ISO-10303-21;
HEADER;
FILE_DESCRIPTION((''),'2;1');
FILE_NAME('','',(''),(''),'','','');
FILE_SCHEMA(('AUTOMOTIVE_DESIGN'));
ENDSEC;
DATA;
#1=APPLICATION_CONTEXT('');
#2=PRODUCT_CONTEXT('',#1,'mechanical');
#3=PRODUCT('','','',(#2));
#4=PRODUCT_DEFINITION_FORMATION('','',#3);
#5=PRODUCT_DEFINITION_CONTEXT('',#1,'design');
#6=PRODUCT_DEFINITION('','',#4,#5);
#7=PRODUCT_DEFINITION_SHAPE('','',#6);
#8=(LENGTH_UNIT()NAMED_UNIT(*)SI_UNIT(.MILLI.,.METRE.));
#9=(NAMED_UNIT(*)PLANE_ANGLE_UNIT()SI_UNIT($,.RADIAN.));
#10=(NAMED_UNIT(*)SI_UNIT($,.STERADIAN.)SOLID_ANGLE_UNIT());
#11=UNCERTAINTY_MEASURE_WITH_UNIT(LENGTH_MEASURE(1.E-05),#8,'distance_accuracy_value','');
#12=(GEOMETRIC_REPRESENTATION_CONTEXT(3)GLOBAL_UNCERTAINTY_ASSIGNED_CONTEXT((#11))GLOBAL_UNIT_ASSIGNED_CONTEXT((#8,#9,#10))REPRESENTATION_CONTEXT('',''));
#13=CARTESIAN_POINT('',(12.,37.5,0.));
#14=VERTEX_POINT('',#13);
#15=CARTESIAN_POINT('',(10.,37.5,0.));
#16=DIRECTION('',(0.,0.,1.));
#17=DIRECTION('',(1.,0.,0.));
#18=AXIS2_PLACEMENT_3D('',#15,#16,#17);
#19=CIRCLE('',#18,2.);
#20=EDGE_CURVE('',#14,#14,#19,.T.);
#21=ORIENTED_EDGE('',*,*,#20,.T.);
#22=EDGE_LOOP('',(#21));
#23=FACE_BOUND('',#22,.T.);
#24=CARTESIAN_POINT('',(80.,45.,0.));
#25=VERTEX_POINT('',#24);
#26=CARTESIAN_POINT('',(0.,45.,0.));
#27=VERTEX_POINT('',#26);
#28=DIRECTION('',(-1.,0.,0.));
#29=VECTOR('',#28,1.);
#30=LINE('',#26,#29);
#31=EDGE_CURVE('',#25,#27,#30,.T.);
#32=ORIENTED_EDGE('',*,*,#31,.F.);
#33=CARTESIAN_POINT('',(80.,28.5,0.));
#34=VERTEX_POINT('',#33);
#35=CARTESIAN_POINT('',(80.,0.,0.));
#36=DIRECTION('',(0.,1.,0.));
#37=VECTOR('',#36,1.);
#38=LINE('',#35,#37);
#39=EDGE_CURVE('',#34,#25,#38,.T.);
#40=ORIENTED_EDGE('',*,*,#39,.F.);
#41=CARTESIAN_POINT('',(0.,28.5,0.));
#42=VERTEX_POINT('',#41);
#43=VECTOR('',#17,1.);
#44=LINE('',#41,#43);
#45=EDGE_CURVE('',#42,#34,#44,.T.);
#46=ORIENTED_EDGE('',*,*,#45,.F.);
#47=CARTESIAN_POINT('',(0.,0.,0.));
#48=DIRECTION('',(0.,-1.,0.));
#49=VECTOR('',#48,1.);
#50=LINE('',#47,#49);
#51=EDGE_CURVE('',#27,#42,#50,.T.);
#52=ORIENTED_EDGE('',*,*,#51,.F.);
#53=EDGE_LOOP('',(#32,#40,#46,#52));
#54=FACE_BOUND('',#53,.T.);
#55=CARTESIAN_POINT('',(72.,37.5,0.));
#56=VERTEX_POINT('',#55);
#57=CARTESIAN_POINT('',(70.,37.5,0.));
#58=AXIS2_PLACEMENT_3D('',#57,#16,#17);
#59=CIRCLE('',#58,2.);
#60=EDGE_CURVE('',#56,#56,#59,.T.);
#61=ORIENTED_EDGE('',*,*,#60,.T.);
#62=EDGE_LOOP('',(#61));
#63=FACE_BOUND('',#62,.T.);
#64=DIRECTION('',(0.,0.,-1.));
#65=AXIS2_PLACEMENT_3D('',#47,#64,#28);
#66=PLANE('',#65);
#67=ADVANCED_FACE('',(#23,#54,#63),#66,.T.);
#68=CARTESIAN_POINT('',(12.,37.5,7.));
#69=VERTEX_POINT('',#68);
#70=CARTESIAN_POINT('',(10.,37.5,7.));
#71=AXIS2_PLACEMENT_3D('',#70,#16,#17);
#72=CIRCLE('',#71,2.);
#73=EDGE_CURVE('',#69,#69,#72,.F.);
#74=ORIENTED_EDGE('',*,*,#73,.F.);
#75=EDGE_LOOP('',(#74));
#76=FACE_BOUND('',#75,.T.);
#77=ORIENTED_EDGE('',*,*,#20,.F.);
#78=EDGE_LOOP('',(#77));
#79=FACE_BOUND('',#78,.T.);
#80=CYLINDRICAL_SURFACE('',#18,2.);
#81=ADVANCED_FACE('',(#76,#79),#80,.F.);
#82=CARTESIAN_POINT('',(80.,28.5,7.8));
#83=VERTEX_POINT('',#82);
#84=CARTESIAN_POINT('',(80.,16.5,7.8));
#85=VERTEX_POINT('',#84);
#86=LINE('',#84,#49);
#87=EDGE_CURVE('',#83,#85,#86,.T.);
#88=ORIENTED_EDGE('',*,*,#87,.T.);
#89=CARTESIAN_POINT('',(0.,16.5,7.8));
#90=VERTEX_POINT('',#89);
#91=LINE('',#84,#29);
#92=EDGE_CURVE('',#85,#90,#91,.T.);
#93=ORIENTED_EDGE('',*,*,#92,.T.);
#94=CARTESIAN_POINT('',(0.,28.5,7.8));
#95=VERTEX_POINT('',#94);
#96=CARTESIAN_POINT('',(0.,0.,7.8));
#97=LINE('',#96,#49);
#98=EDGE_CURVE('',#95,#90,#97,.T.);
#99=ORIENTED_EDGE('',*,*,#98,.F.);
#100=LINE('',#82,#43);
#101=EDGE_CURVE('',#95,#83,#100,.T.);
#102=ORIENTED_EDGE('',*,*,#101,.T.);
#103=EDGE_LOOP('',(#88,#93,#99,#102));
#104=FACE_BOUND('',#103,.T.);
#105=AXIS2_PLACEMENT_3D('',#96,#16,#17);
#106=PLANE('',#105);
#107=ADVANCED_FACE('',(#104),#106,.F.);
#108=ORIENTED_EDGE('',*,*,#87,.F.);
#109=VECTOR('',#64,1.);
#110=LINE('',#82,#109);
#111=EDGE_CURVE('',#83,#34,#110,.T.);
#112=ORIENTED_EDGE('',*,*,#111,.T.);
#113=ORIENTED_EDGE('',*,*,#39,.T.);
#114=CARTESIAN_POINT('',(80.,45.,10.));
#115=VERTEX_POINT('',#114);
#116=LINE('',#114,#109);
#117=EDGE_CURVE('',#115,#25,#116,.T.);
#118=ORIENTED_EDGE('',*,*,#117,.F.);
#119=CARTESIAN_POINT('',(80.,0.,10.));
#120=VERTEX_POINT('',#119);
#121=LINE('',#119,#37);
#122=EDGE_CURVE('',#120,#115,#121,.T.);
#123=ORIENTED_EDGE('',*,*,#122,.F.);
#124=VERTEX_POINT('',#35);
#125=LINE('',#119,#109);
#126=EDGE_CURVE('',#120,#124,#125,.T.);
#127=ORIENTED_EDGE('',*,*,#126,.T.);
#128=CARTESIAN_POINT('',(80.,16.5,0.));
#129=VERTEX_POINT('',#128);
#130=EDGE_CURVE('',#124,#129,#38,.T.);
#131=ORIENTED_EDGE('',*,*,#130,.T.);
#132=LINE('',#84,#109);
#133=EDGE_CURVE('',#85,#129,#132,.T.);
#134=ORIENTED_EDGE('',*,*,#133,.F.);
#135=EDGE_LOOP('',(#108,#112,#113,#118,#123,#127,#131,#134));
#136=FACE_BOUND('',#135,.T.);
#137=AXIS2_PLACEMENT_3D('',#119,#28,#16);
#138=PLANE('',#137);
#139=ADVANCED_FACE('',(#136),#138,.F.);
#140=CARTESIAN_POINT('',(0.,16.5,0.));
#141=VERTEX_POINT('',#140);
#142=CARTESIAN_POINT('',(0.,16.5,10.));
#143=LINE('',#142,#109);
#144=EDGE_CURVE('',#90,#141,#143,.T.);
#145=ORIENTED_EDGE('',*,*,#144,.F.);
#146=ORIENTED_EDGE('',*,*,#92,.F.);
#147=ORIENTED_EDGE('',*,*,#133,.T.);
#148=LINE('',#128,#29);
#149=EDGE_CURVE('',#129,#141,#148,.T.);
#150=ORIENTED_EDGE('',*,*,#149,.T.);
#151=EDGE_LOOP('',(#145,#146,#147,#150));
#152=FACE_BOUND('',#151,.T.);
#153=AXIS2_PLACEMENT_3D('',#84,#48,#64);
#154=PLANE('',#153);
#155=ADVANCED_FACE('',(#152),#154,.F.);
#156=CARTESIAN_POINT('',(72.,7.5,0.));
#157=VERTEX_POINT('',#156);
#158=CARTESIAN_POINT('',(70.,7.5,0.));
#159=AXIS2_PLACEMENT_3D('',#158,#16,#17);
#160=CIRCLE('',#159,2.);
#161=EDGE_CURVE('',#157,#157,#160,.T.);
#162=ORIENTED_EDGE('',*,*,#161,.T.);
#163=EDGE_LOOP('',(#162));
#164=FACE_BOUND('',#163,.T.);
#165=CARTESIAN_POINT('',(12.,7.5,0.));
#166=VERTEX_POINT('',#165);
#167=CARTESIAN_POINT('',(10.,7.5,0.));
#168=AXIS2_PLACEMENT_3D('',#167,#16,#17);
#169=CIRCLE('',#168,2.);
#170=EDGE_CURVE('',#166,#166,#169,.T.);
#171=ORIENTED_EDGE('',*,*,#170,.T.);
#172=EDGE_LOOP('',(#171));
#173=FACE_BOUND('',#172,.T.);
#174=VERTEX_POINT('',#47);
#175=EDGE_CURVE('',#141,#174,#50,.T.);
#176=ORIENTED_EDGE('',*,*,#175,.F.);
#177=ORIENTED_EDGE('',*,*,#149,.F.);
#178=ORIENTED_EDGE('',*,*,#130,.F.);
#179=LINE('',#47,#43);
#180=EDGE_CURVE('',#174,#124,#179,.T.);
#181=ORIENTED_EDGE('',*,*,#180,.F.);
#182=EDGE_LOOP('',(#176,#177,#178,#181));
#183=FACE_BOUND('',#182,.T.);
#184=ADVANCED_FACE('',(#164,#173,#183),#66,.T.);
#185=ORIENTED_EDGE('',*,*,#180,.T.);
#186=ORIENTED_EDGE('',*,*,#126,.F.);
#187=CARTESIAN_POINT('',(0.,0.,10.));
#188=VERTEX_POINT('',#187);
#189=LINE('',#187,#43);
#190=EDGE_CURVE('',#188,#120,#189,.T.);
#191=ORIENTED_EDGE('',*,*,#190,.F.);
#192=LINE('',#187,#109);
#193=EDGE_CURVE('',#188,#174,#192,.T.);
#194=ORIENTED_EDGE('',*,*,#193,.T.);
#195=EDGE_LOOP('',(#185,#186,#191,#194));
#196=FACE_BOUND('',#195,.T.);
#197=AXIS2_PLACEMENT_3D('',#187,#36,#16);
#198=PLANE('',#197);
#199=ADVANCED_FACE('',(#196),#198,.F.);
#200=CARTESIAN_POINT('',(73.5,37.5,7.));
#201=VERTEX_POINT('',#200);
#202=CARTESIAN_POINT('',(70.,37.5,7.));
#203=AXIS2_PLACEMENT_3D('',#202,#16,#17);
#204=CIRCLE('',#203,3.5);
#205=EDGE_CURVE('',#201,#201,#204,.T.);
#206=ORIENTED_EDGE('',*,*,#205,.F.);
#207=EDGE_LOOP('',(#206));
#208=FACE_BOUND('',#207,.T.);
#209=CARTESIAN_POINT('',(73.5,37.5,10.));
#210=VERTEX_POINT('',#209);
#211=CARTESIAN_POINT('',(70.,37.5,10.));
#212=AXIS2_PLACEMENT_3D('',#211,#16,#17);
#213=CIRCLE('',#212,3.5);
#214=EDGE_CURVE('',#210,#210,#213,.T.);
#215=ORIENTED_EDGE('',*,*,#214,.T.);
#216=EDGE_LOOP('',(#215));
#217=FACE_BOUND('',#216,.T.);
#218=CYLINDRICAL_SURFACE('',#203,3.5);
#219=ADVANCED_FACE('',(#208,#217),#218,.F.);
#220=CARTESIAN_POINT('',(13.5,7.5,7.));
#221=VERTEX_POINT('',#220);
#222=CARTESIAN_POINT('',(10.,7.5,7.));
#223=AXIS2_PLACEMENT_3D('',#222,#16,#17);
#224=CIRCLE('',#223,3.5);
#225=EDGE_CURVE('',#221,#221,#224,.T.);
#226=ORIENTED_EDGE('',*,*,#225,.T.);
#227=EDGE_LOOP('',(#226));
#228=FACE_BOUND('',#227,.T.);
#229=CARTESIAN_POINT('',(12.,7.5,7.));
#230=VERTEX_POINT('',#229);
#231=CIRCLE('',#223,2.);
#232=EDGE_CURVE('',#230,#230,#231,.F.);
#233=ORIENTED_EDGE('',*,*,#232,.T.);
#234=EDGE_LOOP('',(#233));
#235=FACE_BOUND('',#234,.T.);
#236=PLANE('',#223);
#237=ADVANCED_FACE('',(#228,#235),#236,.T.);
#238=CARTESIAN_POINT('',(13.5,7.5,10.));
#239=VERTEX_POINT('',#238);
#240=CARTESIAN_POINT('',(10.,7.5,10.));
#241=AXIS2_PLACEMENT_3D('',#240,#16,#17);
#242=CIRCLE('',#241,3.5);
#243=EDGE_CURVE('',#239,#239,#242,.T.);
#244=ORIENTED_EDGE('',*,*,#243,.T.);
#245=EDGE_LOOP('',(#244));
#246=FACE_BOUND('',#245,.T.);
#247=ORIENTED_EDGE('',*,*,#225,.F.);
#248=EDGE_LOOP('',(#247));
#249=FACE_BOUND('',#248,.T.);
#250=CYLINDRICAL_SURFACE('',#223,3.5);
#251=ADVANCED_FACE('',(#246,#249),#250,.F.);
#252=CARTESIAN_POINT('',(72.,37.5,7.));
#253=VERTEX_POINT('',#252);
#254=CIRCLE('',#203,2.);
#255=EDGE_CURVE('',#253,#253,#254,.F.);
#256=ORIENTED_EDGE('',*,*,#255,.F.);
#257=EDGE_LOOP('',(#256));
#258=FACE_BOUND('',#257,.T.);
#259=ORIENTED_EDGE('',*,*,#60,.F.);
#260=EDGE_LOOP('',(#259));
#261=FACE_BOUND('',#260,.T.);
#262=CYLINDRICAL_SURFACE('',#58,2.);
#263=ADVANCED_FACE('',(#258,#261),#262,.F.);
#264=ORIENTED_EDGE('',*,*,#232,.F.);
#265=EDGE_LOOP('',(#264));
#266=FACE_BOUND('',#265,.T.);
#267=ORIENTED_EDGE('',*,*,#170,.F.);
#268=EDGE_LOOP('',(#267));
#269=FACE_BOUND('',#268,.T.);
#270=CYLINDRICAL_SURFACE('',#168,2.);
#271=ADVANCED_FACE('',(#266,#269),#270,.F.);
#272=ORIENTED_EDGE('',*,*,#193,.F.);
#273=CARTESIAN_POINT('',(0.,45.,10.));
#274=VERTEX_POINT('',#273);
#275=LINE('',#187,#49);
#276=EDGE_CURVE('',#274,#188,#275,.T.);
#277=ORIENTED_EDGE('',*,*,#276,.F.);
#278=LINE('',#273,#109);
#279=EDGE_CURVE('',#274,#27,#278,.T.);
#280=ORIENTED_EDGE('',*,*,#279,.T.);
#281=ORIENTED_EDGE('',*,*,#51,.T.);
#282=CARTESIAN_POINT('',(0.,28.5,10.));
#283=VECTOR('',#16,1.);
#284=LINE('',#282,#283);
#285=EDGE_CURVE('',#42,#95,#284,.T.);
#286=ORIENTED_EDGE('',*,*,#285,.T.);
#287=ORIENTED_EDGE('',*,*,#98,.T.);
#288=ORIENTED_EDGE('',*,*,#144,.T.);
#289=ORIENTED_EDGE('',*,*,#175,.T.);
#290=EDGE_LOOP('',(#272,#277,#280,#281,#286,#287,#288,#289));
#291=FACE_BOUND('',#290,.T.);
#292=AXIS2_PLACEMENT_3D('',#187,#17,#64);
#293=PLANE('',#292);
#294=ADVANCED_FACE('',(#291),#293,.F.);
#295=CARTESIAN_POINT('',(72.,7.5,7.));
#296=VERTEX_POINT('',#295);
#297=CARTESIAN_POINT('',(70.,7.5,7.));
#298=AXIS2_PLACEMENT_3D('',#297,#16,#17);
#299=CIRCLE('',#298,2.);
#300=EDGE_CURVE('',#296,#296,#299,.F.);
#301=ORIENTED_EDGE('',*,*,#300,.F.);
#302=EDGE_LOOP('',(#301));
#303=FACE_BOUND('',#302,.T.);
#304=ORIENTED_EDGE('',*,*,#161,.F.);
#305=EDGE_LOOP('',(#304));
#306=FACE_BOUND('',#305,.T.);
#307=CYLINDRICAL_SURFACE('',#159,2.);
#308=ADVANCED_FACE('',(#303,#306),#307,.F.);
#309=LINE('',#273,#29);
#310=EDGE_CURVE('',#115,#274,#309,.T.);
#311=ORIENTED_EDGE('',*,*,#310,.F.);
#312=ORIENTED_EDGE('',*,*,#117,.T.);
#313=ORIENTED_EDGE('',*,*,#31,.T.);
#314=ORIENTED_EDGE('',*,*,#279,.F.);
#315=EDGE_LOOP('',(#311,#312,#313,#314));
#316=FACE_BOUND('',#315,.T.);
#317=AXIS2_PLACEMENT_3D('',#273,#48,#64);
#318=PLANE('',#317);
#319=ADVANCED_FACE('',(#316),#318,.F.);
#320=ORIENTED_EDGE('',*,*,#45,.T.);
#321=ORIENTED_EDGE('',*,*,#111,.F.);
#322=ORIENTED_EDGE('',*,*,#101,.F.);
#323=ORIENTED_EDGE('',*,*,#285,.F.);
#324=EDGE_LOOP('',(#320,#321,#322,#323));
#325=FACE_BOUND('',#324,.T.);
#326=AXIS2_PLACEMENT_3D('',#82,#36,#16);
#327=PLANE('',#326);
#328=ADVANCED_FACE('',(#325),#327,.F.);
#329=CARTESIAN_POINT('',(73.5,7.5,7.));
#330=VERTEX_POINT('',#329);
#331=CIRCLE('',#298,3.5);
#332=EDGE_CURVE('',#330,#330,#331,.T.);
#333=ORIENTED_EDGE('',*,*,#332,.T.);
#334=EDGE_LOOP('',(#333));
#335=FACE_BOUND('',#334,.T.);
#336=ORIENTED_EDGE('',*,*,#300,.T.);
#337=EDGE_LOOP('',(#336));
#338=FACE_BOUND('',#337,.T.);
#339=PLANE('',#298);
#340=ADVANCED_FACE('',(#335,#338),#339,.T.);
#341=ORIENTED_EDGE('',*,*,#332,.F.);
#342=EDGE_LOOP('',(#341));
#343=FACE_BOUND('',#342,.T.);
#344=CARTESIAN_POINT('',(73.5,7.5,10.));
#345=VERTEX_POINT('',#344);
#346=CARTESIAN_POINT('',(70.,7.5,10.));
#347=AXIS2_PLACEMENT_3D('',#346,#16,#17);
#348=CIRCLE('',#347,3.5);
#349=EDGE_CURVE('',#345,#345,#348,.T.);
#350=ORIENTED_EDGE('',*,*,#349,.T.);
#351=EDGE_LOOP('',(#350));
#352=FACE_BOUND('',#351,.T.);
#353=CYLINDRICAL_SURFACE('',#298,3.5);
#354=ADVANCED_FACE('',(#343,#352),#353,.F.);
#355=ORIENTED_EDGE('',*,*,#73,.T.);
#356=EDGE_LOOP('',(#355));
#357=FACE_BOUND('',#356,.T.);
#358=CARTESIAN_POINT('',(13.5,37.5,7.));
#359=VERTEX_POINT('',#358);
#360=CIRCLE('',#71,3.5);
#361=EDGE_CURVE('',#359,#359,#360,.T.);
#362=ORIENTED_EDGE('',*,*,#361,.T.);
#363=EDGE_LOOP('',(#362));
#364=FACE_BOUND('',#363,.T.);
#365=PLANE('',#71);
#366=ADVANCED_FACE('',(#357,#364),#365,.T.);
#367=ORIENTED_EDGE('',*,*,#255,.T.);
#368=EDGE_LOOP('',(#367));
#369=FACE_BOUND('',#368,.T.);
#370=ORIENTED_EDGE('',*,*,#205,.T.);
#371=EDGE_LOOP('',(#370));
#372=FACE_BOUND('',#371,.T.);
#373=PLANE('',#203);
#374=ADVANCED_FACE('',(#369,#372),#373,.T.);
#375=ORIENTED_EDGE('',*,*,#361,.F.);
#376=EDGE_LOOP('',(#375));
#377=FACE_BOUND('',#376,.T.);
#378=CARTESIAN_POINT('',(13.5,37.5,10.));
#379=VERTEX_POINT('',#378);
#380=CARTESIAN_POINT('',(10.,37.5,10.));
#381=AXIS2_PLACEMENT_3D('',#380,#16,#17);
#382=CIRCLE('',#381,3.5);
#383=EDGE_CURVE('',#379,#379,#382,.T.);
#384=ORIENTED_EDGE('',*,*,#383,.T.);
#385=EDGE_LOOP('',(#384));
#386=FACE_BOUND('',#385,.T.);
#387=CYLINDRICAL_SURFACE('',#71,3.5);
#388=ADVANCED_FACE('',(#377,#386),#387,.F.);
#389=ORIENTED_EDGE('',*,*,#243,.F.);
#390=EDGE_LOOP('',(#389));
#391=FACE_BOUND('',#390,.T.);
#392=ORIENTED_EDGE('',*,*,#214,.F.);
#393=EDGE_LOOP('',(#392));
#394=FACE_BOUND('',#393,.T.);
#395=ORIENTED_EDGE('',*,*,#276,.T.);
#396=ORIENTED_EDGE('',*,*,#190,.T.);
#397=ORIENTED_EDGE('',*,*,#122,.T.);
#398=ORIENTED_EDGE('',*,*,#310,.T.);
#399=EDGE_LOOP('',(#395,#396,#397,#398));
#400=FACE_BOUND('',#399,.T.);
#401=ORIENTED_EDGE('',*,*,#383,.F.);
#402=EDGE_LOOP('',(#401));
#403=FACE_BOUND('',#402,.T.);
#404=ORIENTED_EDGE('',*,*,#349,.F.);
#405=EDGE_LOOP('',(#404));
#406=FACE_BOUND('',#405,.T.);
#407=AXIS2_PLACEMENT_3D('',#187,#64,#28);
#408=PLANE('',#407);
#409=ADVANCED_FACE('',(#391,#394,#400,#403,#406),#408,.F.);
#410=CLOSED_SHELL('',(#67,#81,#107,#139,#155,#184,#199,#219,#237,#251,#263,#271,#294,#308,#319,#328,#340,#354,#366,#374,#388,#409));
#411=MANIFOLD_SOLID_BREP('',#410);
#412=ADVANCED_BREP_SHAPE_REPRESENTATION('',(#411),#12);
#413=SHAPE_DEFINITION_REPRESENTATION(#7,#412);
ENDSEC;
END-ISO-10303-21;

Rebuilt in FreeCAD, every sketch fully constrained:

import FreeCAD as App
import Part
import Sketcher

V = App.Vector
Q = App.Units.Quantity

doc = App.newDocument("Part")
body = doc.addObject("PartDesign::Body", "Body")

sketch1 = body.newObject("Sketcher::SketchObject", "Sketch")
sketch1.AttachmentSupport = (doc.getObject("XY_Plane"), [""])
sketch1.MapMode = "FlatFace"
sketch1.addGeometry(Part.LineSegment(V(0, 45, 0), V(0, 0, 0)), False)
sketch1.addGeometry(Part.LineSegment(V(0, 0, 0), V(80, 0, 0)), False)
sketch1.addGeometry(Part.LineSegment(V(80, 0, 0), V(80, 45, 0)), False)
sketch1.addGeometry(Part.LineSegment(V(80, 45, 0), V(0, 45, 0)), False)
sketch1.addConstraint(Sketcher.Constraint("Coincident", 0, 2, 1, 1))
sketch1.addConstraint(Sketcher.Constraint("Coincident", 1, 2, 2, 1))
sketch1.addConstraint(Sketcher.Constraint("Coincident", 2, 2, 3, 1))
sketch1.addConstraint(Sketcher.Constraint("Coincident", 3, 2, 0, 1))
sketch1.addConstraint(Sketcher.Constraint("Vertical", 0))
sketch1.addConstraint(Sketcher.Constraint("Horizontal", 1))
sketch1.addConstraint(Sketcher.Constraint("Vertical", 2))
sketch1.addConstraint(Sketcher.Constraint("Horizontal", 3))
sketch1.addConstraint(Sketcher.Constraint("Coincident", 0, 2, -1, 1))
sketch1.addConstraint(Sketcher.Constraint("DistanceX", 1, 1, 1, 2, Q("80 mm")))
sketch1.addConstraint(Sketcher.Constraint("DistanceY", 0, 2, 0, 1, Q("45 mm")))
pad1 = body.newObject("PartDesign::Pad", "Pad")
pad1.Profile = sketch1
pad1.Length = 10

sketch2 = body.newObject("Sketcher::SketchObject", "Sketch001")
sketch2.AttachmentSupport = (doc.getObject("XY_Plane"), [""])
sketch2.MapMode = "FlatFace"
sketch2.addGeometry(Part.LineSegment(V(80, 28.5, 0), V(80, 16.5, 0)), False)
sketch2.addGeometry(Part.LineSegment(V(80, 16.5, 0), V(-30, 16.5, 0)), False)
sketch2.addGeometry(Part.LineSegment(V(-30, 16.5, 0), V(-30, 28.5, 0)), False)
sketch2.addGeometry(Part.LineSegment(V(-30, 28.5, 0), V(80, 28.5, 0)), False)
sketch2.addConstraint(Sketcher.Constraint("Coincident", 0, 2, 1, 1))
sketch2.addConstraint(Sketcher.Constraint("Coincident", 1, 2, 2, 1))
sketch2.addConstraint(Sketcher.Constraint("Coincident", 2, 2, 3, 1))
sketch2.addConstraint(Sketcher.Constraint("Coincident", 3, 2, 0, 1))
sketch2.addConstraint(Sketcher.Constraint("Vertical", 0))
sketch2.addConstraint(Sketcher.Constraint("Horizontal", 1))
sketch2.addConstraint(Sketcher.Constraint("Vertical", 2))
sketch2.addConstraint(Sketcher.Constraint("Horizontal", 3))
sketch2.addConstraint(Sketcher.Constraint("DistanceX", 1, 2, 1, 1, Q("110 mm")))
sketch2.addConstraint(Sketcher.Constraint("DistanceY", 0, 2, 0, 1, Q("12 mm")))
sketch2.addConstraint(Sketcher.Constraint("DistanceX", -1, 1, 0, 2, Q("80 mm")))
sketch2.addConstraint(Sketcher.Constraint("DistanceY", -1, 1, 0, 2, Q("16.5 mm")))
pocket1 = body.newObject("PartDesign::Pocket", "Pocket")
pocket1.Profile = sketch2
pocket1.Length = 7.8
pocket1.Reversed = True

sketch3 = body.newObject("Sketcher::SketchObject", "Sketch002")
sketch3.AttachmentSupport = (doc.getObject("XY_Plane"), [""])
sketch3.MapMode = "FlatFace"
sketch3.AttachmentOffset = App.Placement(V(0, 0, 10), App.Rotation())
sketch3.addGeometry(Part.Circle(V(10, 37.5, 0), V(0, 0, 1), 2), False)
sketch3.addGeometry(Part.Circle(V(70, 37.5, 0), V(0, 0, 1), 2), False)
sketch3.addGeometry(Part.Circle(V(70, 7.5, 0), V(0, 0, 1), 2), False)
sketch3.addGeometry(Part.Circle(V(10, 7.5, 0), V(0, 0, 1), 2), False)
sketch3.addConstraint(Sketcher.Constraint("Equal", 0, 1))
sketch3.addConstraint(Sketcher.Constraint("Equal", 1, 2))
sketch3.addConstraint(Sketcher.Constraint("Equal", 2, 3))
sketch3.addConstraint(Sketcher.Constraint("Horizontal", 0, 3, 1, 3))
sketch3.addConstraint(Sketcher.Constraint("Horizontal", 2, 3, 3, 3))
sketch3.addConstraint(Sketcher.Constraint("Vertical", 1, 3, 2, 3))
sketch3.addConstraint(Sketcher.Constraint("Vertical", 0, 3, 3, 3))
sketch3.addConstraint(Sketcher.Constraint("Diameter", 0, Q("4 mm")))
sketch3.addConstraint(Sketcher.Constraint("DistanceX", -1, 1, 0, 3, Q("10 mm")))
sketch3.addConstraint(Sketcher.Constraint("DistanceX", -1, 1, 1, 3, Q("70 mm")))
sketch3.addConstraint(Sketcher.Constraint("DistanceY", 2, 3, 1, 3, Q("30 mm")))
sketch3.addConstraint(Sketcher.Constraint("DistanceY", -1, 1, 0, 3, Q("37.5 mm")))
pocket2 = body.newObject("PartDesign::Pocket", "Pocket001")
pocket2.Profile = sketch3
pocket2.Type = "ThroughAll"

sketch4 = body.newObject("Sketcher::SketchObject", "Sketch003")
sketch4.AttachmentSupport = (doc.getObject("XY_Plane"), [""])
sketch4.MapMode = "FlatFace"
sketch4.AttachmentOffset = App.Placement(V(0, 0, 10), App.Rotation())
sketch4.addGeometry(Part.Circle(V(10, 37.5, 0), V(0, 0, 1), 3.5), False)
sketch4.addGeometry(Part.Circle(V(70, 37.5, 0), V(0, 0, 1), 3.5), False)
sketch4.addGeometry(Part.Circle(V(70, 7.5, 0), V(0, 0, 1), 3.5), False)
sketch4.addGeometry(Part.Circle(V(10, 7.5, 0), V(0, 0, 1), 3.5), False)
sketch4.addConstraint(Sketcher.Constraint("Equal", 0, 1))
sketch4.addConstraint(Sketcher.Constraint("Equal", 1, 2))
sketch4.addConstraint(Sketcher.Constraint("Equal", 2, 3))
sketch4.addConstraint(Sketcher.Constraint("Horizontal", 0, 3, 1, 3))
sketch4.addConstraint(Sketcher.Constraint("Horizontal", 2, 3, 3, 3))
sketch4.addConstraint(Sketcher.Constraint("Vertical", 1, 3, 2, 3))
sketch4.addConstraint(Sketcher.Constraint("Vertical", 0, 3, 3, 3))
sketch4.addConstraint(Sketcher.Constraint("Diameter", 0, Q("7 mm")))
sketch4.addConstraint(Sketcher.Constraint("DistanceX", -1, 1, 0, 3, Q("10 mm")))
sketch4.addConstraint(Sketcher.Constraint("DistanceX", -1, 1, 1, 3, Q("70 mm")))
sketch4.addConstraint(Sketcher.Constraint("DistanceY", 2, 3, 1, 3, Q("30 mm")))
sketch4.addConstraint(Sketcher.Constraint("DistanceY", -1, 1, 0, 3, Q("37.5 mm")))
pocket3 = body.newObject("PartDesign::Pocket", "Pocket002")
pocket3.Profile = sketch4
pocket3.Length = 3

doc.recompute()
